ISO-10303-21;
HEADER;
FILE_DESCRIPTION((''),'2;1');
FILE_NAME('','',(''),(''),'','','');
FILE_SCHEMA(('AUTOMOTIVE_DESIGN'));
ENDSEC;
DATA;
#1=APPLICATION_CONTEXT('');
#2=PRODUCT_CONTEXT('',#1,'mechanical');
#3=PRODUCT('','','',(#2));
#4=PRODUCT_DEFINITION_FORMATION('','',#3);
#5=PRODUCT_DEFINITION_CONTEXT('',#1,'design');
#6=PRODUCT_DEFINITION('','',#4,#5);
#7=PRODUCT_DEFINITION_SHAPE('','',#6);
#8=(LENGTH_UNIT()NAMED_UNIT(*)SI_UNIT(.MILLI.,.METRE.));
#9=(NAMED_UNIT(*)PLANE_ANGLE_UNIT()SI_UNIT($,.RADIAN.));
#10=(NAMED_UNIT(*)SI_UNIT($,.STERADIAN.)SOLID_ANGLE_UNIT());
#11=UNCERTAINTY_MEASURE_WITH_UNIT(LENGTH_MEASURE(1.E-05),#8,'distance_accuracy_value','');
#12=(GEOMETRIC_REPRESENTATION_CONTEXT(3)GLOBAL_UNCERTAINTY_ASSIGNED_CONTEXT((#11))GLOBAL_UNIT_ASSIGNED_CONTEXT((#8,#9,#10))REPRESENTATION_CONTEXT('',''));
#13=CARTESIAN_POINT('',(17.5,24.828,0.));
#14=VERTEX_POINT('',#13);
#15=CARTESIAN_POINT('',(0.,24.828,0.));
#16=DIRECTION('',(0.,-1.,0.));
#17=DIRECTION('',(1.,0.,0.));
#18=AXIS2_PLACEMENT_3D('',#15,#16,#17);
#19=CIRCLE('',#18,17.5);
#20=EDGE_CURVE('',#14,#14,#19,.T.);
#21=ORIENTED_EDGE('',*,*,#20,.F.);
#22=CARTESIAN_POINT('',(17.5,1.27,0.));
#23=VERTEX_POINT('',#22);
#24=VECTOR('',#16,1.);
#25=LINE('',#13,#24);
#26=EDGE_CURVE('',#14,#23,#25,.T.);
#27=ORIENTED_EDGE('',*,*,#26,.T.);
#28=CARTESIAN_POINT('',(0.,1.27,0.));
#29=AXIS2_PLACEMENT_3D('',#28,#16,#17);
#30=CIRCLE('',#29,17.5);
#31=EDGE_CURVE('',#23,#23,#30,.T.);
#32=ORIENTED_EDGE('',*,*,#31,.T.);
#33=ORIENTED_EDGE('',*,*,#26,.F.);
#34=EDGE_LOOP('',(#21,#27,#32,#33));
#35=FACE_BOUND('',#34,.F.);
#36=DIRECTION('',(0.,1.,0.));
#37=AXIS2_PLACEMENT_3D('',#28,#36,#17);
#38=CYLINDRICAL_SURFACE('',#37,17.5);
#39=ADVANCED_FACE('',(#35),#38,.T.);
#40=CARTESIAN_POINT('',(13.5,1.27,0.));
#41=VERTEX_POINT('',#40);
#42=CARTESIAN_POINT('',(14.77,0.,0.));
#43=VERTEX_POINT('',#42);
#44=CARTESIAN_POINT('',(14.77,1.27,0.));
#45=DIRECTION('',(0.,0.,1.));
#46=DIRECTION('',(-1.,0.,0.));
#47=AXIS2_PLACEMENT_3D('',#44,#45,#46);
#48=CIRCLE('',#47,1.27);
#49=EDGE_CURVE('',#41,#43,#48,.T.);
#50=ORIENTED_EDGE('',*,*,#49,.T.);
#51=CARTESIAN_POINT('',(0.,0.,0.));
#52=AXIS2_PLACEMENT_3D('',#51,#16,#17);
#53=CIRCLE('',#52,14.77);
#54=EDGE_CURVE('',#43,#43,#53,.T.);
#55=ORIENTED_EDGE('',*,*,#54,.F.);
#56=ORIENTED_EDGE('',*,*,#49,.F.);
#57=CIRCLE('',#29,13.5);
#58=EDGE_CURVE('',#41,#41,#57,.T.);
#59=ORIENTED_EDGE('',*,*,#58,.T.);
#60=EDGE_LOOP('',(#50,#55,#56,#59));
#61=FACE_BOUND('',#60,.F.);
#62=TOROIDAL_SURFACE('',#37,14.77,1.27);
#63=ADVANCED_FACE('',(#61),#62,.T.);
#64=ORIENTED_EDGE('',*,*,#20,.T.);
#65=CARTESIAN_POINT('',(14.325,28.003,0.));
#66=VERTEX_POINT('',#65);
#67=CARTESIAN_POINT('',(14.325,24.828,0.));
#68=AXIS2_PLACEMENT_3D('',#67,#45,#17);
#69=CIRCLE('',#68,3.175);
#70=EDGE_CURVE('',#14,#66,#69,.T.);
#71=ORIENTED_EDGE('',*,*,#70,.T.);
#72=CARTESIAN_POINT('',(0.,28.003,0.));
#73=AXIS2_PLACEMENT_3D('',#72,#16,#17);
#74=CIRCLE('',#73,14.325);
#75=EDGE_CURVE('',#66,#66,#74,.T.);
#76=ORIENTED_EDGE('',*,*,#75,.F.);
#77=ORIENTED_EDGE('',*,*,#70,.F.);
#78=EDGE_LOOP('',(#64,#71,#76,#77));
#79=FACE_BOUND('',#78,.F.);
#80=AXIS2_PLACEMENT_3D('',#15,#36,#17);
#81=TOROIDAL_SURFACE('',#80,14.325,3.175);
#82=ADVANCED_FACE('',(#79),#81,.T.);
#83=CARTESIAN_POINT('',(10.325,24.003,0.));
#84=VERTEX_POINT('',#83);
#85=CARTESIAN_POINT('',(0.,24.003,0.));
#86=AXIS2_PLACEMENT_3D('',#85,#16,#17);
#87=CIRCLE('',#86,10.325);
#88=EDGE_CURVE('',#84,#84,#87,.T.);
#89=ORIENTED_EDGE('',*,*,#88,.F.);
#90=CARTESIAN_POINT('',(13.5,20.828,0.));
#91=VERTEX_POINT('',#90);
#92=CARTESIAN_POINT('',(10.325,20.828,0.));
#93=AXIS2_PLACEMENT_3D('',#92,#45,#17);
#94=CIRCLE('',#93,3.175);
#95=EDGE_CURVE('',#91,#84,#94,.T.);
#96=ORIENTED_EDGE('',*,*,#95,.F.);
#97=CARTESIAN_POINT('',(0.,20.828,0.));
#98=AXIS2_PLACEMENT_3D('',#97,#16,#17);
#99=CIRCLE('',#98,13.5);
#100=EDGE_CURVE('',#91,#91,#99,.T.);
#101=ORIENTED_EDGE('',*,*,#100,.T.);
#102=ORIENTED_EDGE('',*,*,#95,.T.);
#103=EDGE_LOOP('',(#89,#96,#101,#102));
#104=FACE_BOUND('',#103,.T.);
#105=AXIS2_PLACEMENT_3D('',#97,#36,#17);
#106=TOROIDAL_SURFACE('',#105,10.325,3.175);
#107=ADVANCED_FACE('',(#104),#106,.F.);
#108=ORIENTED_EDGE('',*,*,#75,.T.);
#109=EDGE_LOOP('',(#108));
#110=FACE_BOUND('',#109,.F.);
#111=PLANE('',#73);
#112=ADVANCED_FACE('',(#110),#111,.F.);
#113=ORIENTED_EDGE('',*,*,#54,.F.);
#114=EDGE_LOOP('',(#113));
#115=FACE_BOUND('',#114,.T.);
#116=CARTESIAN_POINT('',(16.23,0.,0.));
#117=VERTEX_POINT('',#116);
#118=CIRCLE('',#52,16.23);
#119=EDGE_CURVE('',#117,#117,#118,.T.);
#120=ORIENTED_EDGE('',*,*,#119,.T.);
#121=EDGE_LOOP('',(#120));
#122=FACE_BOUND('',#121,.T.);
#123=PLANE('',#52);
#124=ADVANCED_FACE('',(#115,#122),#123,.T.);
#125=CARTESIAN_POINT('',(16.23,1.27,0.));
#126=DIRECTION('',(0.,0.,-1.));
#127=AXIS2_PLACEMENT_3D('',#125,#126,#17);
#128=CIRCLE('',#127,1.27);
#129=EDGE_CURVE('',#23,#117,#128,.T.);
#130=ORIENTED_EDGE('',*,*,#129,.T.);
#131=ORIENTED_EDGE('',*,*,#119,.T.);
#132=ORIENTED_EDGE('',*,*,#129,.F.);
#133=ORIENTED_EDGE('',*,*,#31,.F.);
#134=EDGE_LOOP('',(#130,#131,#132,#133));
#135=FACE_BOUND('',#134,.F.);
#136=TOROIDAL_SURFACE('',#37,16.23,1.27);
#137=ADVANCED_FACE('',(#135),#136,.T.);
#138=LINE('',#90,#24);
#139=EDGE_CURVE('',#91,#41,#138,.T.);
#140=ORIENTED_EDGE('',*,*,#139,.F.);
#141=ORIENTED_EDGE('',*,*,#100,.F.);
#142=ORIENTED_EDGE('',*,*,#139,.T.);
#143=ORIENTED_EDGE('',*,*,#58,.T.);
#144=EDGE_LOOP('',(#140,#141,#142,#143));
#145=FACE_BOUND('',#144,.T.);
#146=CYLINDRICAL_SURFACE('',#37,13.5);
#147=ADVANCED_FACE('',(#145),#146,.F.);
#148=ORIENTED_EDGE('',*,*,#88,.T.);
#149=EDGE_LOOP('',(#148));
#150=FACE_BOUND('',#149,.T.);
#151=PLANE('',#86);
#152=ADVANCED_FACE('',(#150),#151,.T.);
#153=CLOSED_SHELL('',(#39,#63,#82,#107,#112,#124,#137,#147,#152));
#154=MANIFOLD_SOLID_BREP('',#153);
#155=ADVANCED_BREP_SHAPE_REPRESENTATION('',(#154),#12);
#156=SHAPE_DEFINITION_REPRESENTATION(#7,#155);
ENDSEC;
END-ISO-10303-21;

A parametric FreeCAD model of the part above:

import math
import FreeCAD as App
import Part
import Sketcher
Q = App.Units.Quantity

doc = App.newDocument("Part")
body = doc.addObject("PartDesign::Body", "Body")

sketch1 = body.newObject("Sketcher::SketchObject", "Sketch")
sketch1.AttachmentSupport = (doc.getObject("XY_Plane"), [""])
sketch1.MapMode = "FlatFace"
sketch1.addGeometry(Part.LineSegment(App.Vector(13.5, 20.828, 0), App.Vector(13.5, 1.27, 0)), False)
sketch1.addGeometry(Part.ArcOfCircle(Part.Circle(App.Vector(14.77, 1.27, 0), App.Vector(0, 0, 1), 1.27), math.radians(180), math.radians(270)), False)
sketch1.addGeometry(Part.LineSegment(App.Vector(14.77, 0, 0), App.Vector(16.23, 0, 0)), False)
sketch1.addGeometry(Part.ArcOfCircle(Part.Circle(App.Vector(16.23, 1.27, 0), App.Vector(0, 0, 1), 1.27), math.radians(-90), math.radians(0)), False)
sketch1.addGeometry(Part.LineSegment(App.Vector(17.5, 1.27, 0), App.Vector(17.5, 24.828, 0)), False)
sketch1.addGeometry(Part.ArcOfCircle(Part.Circle(App.Vector(14.325, 24.828, 0), App.Vector(0, 0, 1), 3.175), math.radians(0), math.radians(90)), False)
sketch1.addGeometry(Part.LineSegment(App.Vector(14.325, 28.003, 0), App.Vector(0, 28.003, 0)), False)
sketch1.addGeometry(Part.LineSegment(App.Vector(0, 28.003, 0), App.Vector(0, 24.003, 0)), False)
sketch1.addGeometry(Part.LineSegment(App.Vector(0, 24.003, 0), App.Vector(10.325, 24.003, 0)), False)
sketch1.addGeometry(Part.ArcOfCircle(Part.Circle(App.Vector(10.325, 20.828, 0), App.Vector(0, 0, 1), 3.175), math.radians(0), math.radians(90)), False)
sketch1.addConstraint(Sketcher.Constraint("Tangent", 0, 2, 1, 1))
sketch1.addConstraint(Sketcher.Constraint("Tangent", 1, 2, 2, 1))
sketch1.addConstraint(Sketcher.Constraint("Tangent", 2, 2, 3, 1))
sketch1.addConstraint(Sketcher.Constraint("Tangent", 3, 2, 4, 1))
sketch1.addConstraint(Sketcher.Constraint("Tangent", 4, 2, 5, 1))
sketch1.addConstraint(Sketcher.Constraint("Tangent", 5, 2, 6, 1))
sketch1.addConstraint(Sketcher.Constraint("Coincident", 6, 2, 7, 1))
sketch1.addConstraint(Sketcher.Constraint("Coincident", 7, 2, 8, 1))
sketch1.addConstraint(Sketcher.Constraint("Tangent", 8, 2, 9, 2))
sketch1.addConstraint(Sketcher.Constraint("Tangent", 9, 1, 0, 1))
sketch1.addConstraint(Sketcher.Constraint("Vertical", 0))
sketch1.addConstraint(Sketcher.Constraint("Horizontal", 2))
sketch1.addConstraint(Sketcher.Constraint("Vertical", 4))
sketch1.addConstraint(Sketcher.Constraint("Horizontal", 6))
sketch1.addConstraint(Sketcher.Constraint("Vertical", 7))
sketch1.addConstraint(Sketcher.Constraint("Horizontal", 8))
sketch1.addConstraint(Sketcher.Constraint("Equal", 1, 3))
sketch1.addConstraint(Sketcher.Constraint("Equal", 5, 9))
sketch1.addConstraint(Sketcher.Constraint("PointOnObject", 1, 2, -1))
sketch1.addConstraint(Sketcher.Constraint("PointOnObject", 6, 2, -2))
sketch1.addConstraint(Sketcher.Constraint("Radius", 1, Q("0.05 in")))
sketch1.addConstraint(Sketcher.Constraint("Radius", 5, Q("0.125 in")))
sketch1.addConstraint(Sketcher.Constraint("DistanceY", -1, 1, 7, 2, Q("0.945 in")))
sketch1.addConstraint(Sketcher.Constraint("DistanceY", 7, 2, 7, 1, 4.0))
sketch1.addConstraint(Sketcher.Constraint("DistanceX", 9, 3, 5, 3, 4.0))
sketch1.addConstraint(Sketcher.Constraint("DistanceX", 8, 1, 8, 2, Q("0.4065 in")))
revolution = body.newObject("PartDesign::Revolution", "Revolution")
revolution.Profile = sketch1
revolution.ReferenceAxis = (sketch1, ["V_Axis"])
revolution.Angle = 360

doc.recompute()
